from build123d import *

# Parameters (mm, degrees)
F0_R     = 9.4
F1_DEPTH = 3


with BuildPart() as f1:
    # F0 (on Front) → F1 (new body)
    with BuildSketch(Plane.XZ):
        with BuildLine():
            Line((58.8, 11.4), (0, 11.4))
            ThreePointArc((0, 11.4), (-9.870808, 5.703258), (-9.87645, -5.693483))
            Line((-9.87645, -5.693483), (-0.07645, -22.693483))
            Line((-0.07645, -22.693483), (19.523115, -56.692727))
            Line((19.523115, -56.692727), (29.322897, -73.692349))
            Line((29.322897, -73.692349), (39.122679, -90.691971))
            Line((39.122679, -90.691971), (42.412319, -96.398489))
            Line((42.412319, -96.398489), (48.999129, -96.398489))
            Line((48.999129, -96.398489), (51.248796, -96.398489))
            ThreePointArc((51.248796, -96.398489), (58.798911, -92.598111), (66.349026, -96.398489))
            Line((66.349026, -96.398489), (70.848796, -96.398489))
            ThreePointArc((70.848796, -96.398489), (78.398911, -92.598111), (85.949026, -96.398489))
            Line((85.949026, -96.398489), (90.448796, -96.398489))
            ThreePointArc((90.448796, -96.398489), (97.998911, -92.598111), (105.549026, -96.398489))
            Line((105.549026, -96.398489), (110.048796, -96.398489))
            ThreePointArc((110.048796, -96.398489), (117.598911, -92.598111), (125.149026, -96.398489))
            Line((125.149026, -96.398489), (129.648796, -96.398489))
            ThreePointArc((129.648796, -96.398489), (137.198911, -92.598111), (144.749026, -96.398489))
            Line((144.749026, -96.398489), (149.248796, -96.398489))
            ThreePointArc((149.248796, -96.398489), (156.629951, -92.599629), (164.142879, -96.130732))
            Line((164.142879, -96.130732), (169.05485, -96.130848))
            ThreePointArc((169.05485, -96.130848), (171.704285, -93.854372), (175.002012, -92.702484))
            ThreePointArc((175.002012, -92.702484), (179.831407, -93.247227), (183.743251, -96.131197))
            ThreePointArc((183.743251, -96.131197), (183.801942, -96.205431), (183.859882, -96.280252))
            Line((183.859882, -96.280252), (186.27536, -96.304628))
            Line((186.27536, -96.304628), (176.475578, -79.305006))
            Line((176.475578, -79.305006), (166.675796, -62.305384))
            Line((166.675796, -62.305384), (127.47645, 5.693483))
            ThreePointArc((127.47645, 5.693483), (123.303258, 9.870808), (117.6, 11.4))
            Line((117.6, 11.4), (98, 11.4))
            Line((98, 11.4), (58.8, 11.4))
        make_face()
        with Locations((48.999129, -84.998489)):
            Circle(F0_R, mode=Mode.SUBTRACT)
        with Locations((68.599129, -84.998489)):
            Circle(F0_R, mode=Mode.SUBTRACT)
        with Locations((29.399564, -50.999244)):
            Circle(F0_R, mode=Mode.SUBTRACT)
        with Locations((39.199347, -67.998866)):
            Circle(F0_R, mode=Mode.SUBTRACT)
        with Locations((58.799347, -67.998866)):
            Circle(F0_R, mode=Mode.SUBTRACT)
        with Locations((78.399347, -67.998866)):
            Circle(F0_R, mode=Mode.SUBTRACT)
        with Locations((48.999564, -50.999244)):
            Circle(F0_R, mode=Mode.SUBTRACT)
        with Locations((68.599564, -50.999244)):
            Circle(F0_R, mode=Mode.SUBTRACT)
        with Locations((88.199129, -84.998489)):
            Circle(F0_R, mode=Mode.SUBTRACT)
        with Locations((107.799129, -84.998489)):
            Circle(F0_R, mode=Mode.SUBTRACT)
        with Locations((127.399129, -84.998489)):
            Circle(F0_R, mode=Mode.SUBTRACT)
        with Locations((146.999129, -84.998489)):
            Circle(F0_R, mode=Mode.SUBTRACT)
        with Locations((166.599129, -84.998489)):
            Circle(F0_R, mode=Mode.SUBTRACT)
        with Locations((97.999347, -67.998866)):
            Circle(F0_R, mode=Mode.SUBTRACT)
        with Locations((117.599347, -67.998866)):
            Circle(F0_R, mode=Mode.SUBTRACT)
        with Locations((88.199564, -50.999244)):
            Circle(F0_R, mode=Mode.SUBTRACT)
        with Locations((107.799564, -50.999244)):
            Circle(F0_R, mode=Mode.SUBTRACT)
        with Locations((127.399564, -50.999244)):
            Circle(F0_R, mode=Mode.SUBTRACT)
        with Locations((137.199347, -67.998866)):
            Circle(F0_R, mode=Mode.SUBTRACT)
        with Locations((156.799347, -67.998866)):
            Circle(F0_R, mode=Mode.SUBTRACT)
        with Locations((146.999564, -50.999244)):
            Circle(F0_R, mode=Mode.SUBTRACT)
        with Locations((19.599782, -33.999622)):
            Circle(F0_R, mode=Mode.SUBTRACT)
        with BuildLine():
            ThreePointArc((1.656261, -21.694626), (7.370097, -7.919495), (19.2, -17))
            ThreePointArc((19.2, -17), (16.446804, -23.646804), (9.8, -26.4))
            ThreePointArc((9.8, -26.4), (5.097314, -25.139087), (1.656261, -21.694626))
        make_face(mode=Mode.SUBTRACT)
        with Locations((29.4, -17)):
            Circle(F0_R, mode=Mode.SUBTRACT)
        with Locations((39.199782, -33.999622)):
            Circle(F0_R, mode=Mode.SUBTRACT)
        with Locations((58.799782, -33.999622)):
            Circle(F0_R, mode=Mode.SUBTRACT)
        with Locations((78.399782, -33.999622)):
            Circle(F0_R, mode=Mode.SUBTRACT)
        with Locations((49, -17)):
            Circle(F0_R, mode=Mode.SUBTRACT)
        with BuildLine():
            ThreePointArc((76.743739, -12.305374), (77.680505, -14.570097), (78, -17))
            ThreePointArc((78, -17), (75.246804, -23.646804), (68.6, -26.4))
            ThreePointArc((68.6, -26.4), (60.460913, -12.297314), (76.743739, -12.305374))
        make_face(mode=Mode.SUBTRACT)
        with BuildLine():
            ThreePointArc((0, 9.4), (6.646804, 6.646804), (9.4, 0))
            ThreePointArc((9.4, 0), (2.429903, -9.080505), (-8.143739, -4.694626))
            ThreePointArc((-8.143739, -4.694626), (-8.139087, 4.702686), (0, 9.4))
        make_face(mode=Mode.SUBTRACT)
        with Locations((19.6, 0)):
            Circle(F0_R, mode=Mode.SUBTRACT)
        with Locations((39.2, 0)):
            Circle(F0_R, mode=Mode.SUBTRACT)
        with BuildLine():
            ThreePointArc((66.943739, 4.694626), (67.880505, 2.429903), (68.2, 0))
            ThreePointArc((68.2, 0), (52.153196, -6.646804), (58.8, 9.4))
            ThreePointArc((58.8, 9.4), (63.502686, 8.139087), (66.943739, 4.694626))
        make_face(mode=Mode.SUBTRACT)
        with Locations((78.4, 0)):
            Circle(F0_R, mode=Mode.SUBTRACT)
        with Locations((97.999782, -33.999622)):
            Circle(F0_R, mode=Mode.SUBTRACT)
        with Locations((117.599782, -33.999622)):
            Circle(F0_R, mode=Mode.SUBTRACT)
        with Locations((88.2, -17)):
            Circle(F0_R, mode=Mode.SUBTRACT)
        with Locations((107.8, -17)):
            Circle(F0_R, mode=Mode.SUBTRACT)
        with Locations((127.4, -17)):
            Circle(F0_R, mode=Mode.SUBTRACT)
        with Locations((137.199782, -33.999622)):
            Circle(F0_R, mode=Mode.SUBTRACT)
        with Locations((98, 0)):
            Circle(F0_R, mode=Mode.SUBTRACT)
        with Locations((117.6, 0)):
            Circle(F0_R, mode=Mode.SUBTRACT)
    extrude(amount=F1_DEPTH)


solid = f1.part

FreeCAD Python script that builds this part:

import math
import FreeCAD as App
import Part
import Sketcher
Q = App.Units.Quantity

doc = App.newDocument("Part")
params = doc.addObject("Spreadsheet::Sheet", "Params")
for row, (alias, value) in enumerate([
    ("sketch1_diameter", "18.8 mm"),
    ("sketch1_radius", "11.4 mm"),
    ("sketch1_width", "117.6 mm"),
    ("pad1_length", "3 mm"),
], start=1):
    params.set(f"A{row}", alias)
    params.set(f"B{row}", "=" + value)
    params.setAlias(f"B{row}", alias)

body = doc.addObject("PartDesign::Body", "Body")

sketch1 = body.newObject("Sketcher::SketchObject", "Sketch")
sketch1.AttachmentSupport = (doc.getObject("XZ_Plane"), [""])
sketch1.MapMode = "FlatFace"
sketch1.addGeometry(Part.ArcOfCircle(Part.Circle(App.Vector(0, 0, 0), App.Vector(0, 0, 1), 11.4), math.radians(90.000001), math.radians(209.962182)), False)
sketch1.addGeometry(Part.LineSegment(App.Vector(-9.87645, -5.693483, 0), App.Vector(-0.07645, -22.693483, 0)), False)
sketch1.addGeometry(Part.LineSegment(App.Vector(-0.07645, -22.693483, 0), App.Vector(19.523115, -56.692727, 0)), False)
sketch1.addGeometry(Part.LineSegment(App.Vector(19.523115, -56.692727, 0), App.Vector(39.122679, -90.691971, 0)), False)
sketch1.addGeometry(Part.LineSegment(App.Vector(39.122679, -90.691971, 0), App.Vector(42.412319, -96.398489, 0)), False)
sketch1.addGeometry(Part.LineSegment(App.Vector(42.412319, -96.398489, 0), App.Vector(51.248796, -96.398489, 0)), False)
sketch1.addGeometry(Part.ArcOfCircle(Part.Circle(App.Vector(58.798911, -101.998111, 0), App.Vector(0, 0, 1), 9.4), math.radians(36.56287), math.radians(143.43713)), False)
sketch1.addGeometry(Part.LineSegment(App.Vector(66.349026, -96.398489, 0), App.Vector(70.848796, -96.398489, 0)), False)
sketch1.addGeometry(Part.ArcOfCircle(Part.Circle(App.Vector(78.398911, -101.998111, 0), App.Vector(0, 0, 1), 9.4), math.radians(36.56287), math.radians(143.43713)), False)
sketch1.addGeometry(Part.LineSegment(App.Vector(85.949026, -96.398489, 0), App.Vector(90.448796, -96.398489, 0)), False)
sketch1.addGeometry(Part.ArcOfCircle(Part.Circle(App.Vector(97.998911, -101.998111, 0), App.Vector(0, 0, 1), 9.4), math.radians(36.56287), math.radians(143.43713)), False)
sketch1.addGeometry(Part.LineSegment(App.Vector(105.549026, -96.398489, 0), App.Vector(110.048796, -96.398489, 0)), False)
sketch1.addGeometry(Part.ArcOfCircle(Part.Circle(App.Vector(117.598911, -101.998111, 0), App.Vector(0, 0, 1), 9.4), math.radians(36.56287), math.radians(143.43713)), False)
sketch1.addGeometry(Part.LineSegment(App.Vector(125.149026, -96.398489, 0), App.Vector(129.648796, -96.398489, 0)), False)
sketch1.addGeometry(Part.ArcOfCircle(Part.Circle(App.Vector(137.198911, -101.998111, 0), App.Vector(0, 0, 1), 9.4), math.radians(36.56287), math.radians(143.43713)), False)
sketch1.addGeometry(Part.LineSegment(App.Vector(144.749026, -96.398489, 0), App.Vector(149.248796, -96.398489, 0)), False)
sketch1.addGeometry(Part.ArcOfCircle(Part.Circle(App.Vector(156.798911, -101.99811, 0), App.Vector(0, 0, 1), 9.399999), math.radians(38.622699), math.radians(143.437138)), False)
sketch1.addGeometry(Part.LineSegment(App.Vector(164.142879, -96.130732, 0), App.Vector(169.05485, -96.130848, 0)), False)
sketch1.addGeometry(Part.ArcOfCircle(Part.Circle(App.Vector(176.398915, -101.998117, 0), App.Vector(0, 0, 1), 9.400007), math.radians(98.546183), math.radians(141.378185)), False)
sketch1.addGeometry(Part.ArcOfCircle(Part.Circle(App.Vector(176.39891, -101.998115, 0), App.Vector(0, 0, 1), 9.400004), math.radians(38.619087), math.radians(98.546156)), False)
sketch1.addGeometry(Part.ArcOfCircle(Part.Circle(App.Vector(176.402783, -101.995047, 0), App.Vector(0, 0, 1), 9.395063), math.radians(37.464981), math.radians(38.619216)), False)
sketch1.addGeometry(Part.LineSegment(App.Vector(183.859882, -96.280252, 0), App.Vector(186.27536, -96.304628, 0)), False)
sketch1.addGeometry(Part.LineSegment(App.Vector(186.27536, -96.304628, 0), App.Vector(166.675796, -62.305384, 0)), False)
sketch1.addGeometry(Part.LineSegment(App.Vector(166.675796, -62.305384, 0), App.Vector(127.47645, 5.693483, 0)), False)
sketch1.addGeometry(Part.ArcOfCircle(Part.Circle(App.Vector(117.6, -0.000001, 0), App.Vector(0, 0, 1), 11.400001), math.radians(29.96219), math.radians(89.999999)), False)
sketch1.addGeometry(Part.LineSegment(App.Vector(117.6, 11.4, 0), App.Vector(0, 11.4, 0)), False)
sketch1.addGeometry(Part.Circle(App.Vector(48.999129, -84.998489, 0), App.Vector(0, 0, 1), 9.4), False)
sketch1.addGeometry(Part.Circle(App.Vector(68.599129, -84.998489, 0), App.Vector(0, 0, 1), 9.4), False)
sketch1.addGeometry(Part.Circle(App.Vector(29.399564, -50.999244, 0), App.Vector(0, 0, 1), 9.4), False)
sketch1.addGeometry(Part.Circle(App.Vector(39.199347, -67.998866, 0), App.Vector(0, 0, 1), 9.4), False)
sketch1.addGeometry(Part.Circle(App.Vector(58.799347, -67.998866, 0), App.Vector(0, 0, 1), 9.4), False)
sketch1.addGeometry(Part.Circle(App.Vector(78.399347, -67.998866, 0), App.Vector(0, 0, 1), 9.4), False)
sketch1.addGeometry(Part.Circle(App.Vector(48.999564, -50.999244, 0), App.Vector(0, 0, 1), 9.4), False)
sketch1.addGeometry(Part.Circle(App.Vector(68.599564, -50.999244, 0), App.Vector(0, 0, 1), 9.4), False)
sketch1.addGeometry(Part.Circle(App.Vector(88.199129, -84.998489, 0), App.Vector(0, 0, 1), 9.4), False)
sketch1.addGeometry(Part.Circle(App.Vector(107.799129, -84.998489, 0), App.Vector(0, 0, 1), 9.4), False)
sketch1.addGeometry(Part.Circle(App.Vector(127.399129, -84.998489, 0), App.Vector(0, 0, 1), 9.4), False)
sketch1.addGeometry(Part.Circle(App.Vector(146.999129, -84.998489, 0), App.Vector(0, 0, 1), 9.4), False)
sketch1.addGeometry(Part.Circle(App.Vector(166.599129, -84.998489, 0), App.Vector(0, 0, 1), 9.4), False)
sketch1.addGeometry(Part.Circle(App.Vector(97.999347, -67.998866, 0), App.Vector(0, 0, 1), 9.4), False)
sketch1.addGeometry(Part.Circle(App.Vector(117.599347, -67.998866, 0), App.Vector(0, 0, 1), 9.4), False)
sketch1.addGeometry(Part.Circle(App.Vector(88.199564, -50.999244, 0), App.Vector(0, 0, 1), 9.4), False)
sketch1.addGeometry(Part.Circle(App.Vector(107.799564, -50.999244, 0), App.Vector(0, 0, 1), 9.4), False)
sketch1.addGeometry(Part.Circle(App.Vector(127.399564, -50.999244, 0), App.Vector(0, 0, 1), 9.4), False)
sketch1.addGeometry(Part.Circle(App.Vector(137.199347, -67.998866, 0), App.Vector(0, 0, 1), 9.4), False)
sketch1.addGeometry(Part.Circle(App.Vector(156.799347, -67.998866, 0), App.Vector(0, 0, 1), 9.4), False)
sketch1.addGeometry(Part.Circle(App.Vector(146.999564, -50.999244, 0), App.Vector(0, 0, 1), 9.4), False)
sketch1.addGeometry(Part.Circle(App.Vector(19.599782, -33.999622, 0), App.Vector(0, 0, 1), 9.4), False)
sketch1.addGeometry(Part.ArcOfCircle(Part.Circle(App.Vector(9.800001, -16.999998, 0), App.Vector(0, 0, 1), 9.400002), math.radians(-150.037809), math.radians(-90.000008)), False)
sketch1.addGeometry(Part.ArcOfCircle(Part.Circle(App.Vector(9.8, -17, 0), App.Vector(0, 0, 1), 9.4), math.radians(0), math.radians(209.962184)), False)
sketch1.addGeometry(Part.ArcOfCircle(Part.Circle(App.Vector(9.800001, -17.000001, 0), App.Vector(0, 0, 1), 9.399999), math.radians(-90.000005), math.radians(0.000005)), False)
sketch1.addGeometry(Part.Circle(App.Vector(29.4, -17, 0), App.Vector(0, 0, 1), 9.4), False)
sketch1.addGeometry(Part.Circle(App.Vector(39.199782, -33.999622, 0), App.Vector(0, 0, 1), 9.4), False)
sketch1.addGeometry(Part.Circle(App.Vector(58.799782, -33.999622, 0), App.Vector(0, 0, 1), 9.4), False)
sketch1.addGeometry(Part.Circle(App.Vector(78.399782, -33.999622, 0), App.Vector(0, 0, 1), 9.4), False)
sketch1.addGeometry(Part.Circle(App.Vector(49, -17, 0), App.Vector(0, 0, 1), 9.4), False)
sketch1.addGeometry(Part.ArcOfCircle(Part.Circle(App.Vector(68.6, -17, 0), App.Vector(0, 0, 1), 9.4), math.radians(29.962185), math.radians(269.999999)), False)
sketch1.addGeometry(Part.ArcOfCircle(Part.Circle(App.Vector(68.600001, -17, 0), App.Vector(0, 0, 1), 9.399999), math.radians(0), math.radians(29.962187)), False)
sketch1.addGeometry(Part.ArcOfCircle(Part.Circle(App.Vector(68.600001, -17.000001, 0), App.Vector(0, 0, 1), 9.399999), math.radians(-90.000005), math.radians(0.000005)), False)
sketch1.addGeometry(Part.ArcOfCircle(Part.Circle(App.Vector(0.000001, 0, 0), App.Vector(0, 0, 1), 9.4), math.radians(90.000004), math.radians(209.962181)), False)
sketch1.addGeometry(Part.ArcOfCircle(Part.Circle(App.Vector(0.000001, 0.000001, 0), App.Vector(0, 0, 1), 9.399999), math.radians(-0.000005), math.radians(90.000005)), False)
sketch1.addGeometry(Part.ArcOfCircle(Part.Circle(App.Vector(0, 0, 0), App.Vector(0, 0, 1), 9.4), math.radians(-150.037816), math.radians(0)), False)
sketch1.addGeometry(Part.Circle(App.Vector(19.6, 0, 0), App.Vector(0, 0, 1), 9.4), False)
sketch1.addGeometry(Part.Circle(App.Vector(39.2, 0, 0), App.Vector(0, 0, 1), 9.4), False)
sketch1.addGeometry(Part.ArcOfCircle(Part.Circle(App.Vector(58.799999, -0.000002, 0), App.Vector(0, 0, 1), 9.400002), math.radians(29.962191), math.radians(89.999992)), False)
sketch1.addGeometry(Part.ArcOfCircle(Part.Circle(App.Vector(58.800001, 0, 0), App.Vector(0, 0, 1), 9.399999), math.radians(0), math.radians(29.962187)), False)
sketch1.addGeometry(Part.ArcOfCircle(Part.Circle(App.Vector(58.8, 0, 0), App.Vector(0, 0, 1), 9.4), math.radians(89.999999), math.radians(360.000001)), False)
sketch1.addGeometry(Part.Circle(App.Vector(78.4, 0, 0), App.Vector(0, 0, 1), 9.4), False)
sketch1.addGeometry(Part.Circle(App.Vector(97.999782, -33.999622, 0), App.Vector(0, 0, 1), 9.4), False)
sketch1.addGeometry(Part.Circle(App.Vector(117.599782, -33.999622, 0), App.Vector(0, 0, 1), 9.4), False)
sketch1.addGeometry(Part.Circle(App.Vector(88.2, -17, 0), App.Vector(0, 0, 1), 9.4), False)
sketch1.addGeometry(Part.Circle(App.Vector(107.8, -17, 0), App.Vector(0, 0, 1), 9.4), False)
sketch1.addGeometry(Part.Circle(App.Vector(127.4, -17, 0), App.Vector(0, 0, 1), 9.4), False)
sketch1.addGeometry(Part.Circle(App.Vector(137.199782, -33.999622, 0), App.Vector(0, 0, 1), 9.4), False)
sketch1.addGeometry(Part.Circle(App.Vector(98, 0, 0), App.Vector(0, 0, 1), 9.4), False)
sketch1.addGeometry(Part.Circle(App.Vector(117.6, 0, 0), App.Vector(0, 0, 1), 9.4), False)
sketch1.addConstraint(Sketcher.Constraint("Tangent", 0, 2, 1, 1))
sketch1.addConstraint(Sketcher.Constraint("Coincident", 1, 2, 2, 1))
sketch1.addConstraint(Sketcher.Constraint("Coincident", 2, 2, 3, 1))
sketch1.addConstraint(Sketcher.Constraint("Coincident", 3, 2, 4, 1))
sketch1.addConstraint(Sketcher.Constraint("Coincident", 4, 2, 5, 1))
sketch1.addConstraint(Sketcher.Constraint("Coincident", 5, 2, 6, 2))
sketch1.addConstraint(Sketcher.Constraint("Coincident", 6, 1, 7, 1))
sketch1.addConstraint(Sketcher.Constraint("Coincident", 7, 2, 8, 2))
sketch1.addConstraint(Sketcher.Constraint("Coincident", 8, 1, 9, 1))
sketch1.addConstraint(Sketcher.Constraint("Coincident", 9, 2, 10, 2))
sketch1.addConstraint(Sketcher.Constraint("Coincident", 10, 1, 11, 1))
sketch1.addConstraint(Sketcher.Constraint("Coincident", 11, 2, 12, 2))
sketch1.addConstraint(Sketcher.Constraint("Coincident", 12, 1, 13, 1))
sketch1.addConstraint(Sketcher.Constraint("Coincident", 13, 2, 14, 2))
sketch1.addConstraint(Sketcher.Constraint("Coincident", 14, 1, 15, 1))
sketch1.addConstraint(Sketcher.Constraint("Coincident", 15, 2, 16, 2))
sketch1.addConstraint(Sketcher.Constraint("Coincident", 16, 1, 17, 1))
sketch1.addConstraint(Sketcher.Constraint("Coincident", 17, 2, 18, 2))
sketch1.addConstraint(Sketcher.Constraint("Tangent", 18, 1, 19, 2))
sketch1.addConstraint(Sketcher.Constraint("Coincident", 19, 1, 20, 2))
sketch1.addConstraint(Sketcher.Constraint("Coincident", 20, 1, 21, 1))
sketch1.addConstraint(Sketcher.Constraint("Coincident", 21, 2, 22, 1))
sketch1.addConstraint(Sketcher.Constraint("Coincident", 22, 2, 23, 1))
sketch1.addConstraint(Sketcher.Constraint("Tangent", 23, 2, 24, 1))
sketch1.addConstraint(Sketcher.Constraint("Tangent", 24, 2, 25, 1))
sketch1.addConstraint(Sketcher.Constraint("Tangent", 25, 2, 0, 1))
sketch1.addConstraint(Sketcher.Constraint("Tangent", 48, 1, 49, 2))
sketch1.addConstraint(Sketcher.Constraint("Tangent", 49, 1, 50, 2))
sketch1.addConstraint(Sketcher.Constraint("Tangent", 50, 1, 48, 2))
sketch1.addConstraint(Sketcher.Constraint("Tangent", 56, 1, 57, 2))
sketch1.addConstraint(Sketcher.Constraint("Tangent", 57, 1, 58, 2))
sketch1.addConstraint(Sketcher.Constraint("Tangent", 58, 1, 56, 2))
sketch1.addConstraint(Sketcher.Constraint("Tangent", 59, 1, 60, 2))
sketch1.addConstraint(Sketcher.Constraint("Tangent", 60, 1, 61, 2))
sketch1.addConstraint(Sketcher.Constraint("Tangent", 61, 1, 59, 2))
sketch1.addConstraint(Sketcher.Constraint("Tangent", 64, 1, 65, 2))
sketch1.addConstraint(Sketcher.Constraint("Tangent", 65, 1, 66, 2))
sketch1.addConstraint(Sketcher.Constraint("Tangent", 66, 1, 64, 2))
sketch1.addConstraint(Sketcher.Constraint("Horizontal", 5))
sketch1.addConstraint(Sketcher.Constraint("Horizontal", 7))
sketch1.addConstraint(Sketcher.Constraint("Horizontal", 9))
sketch1.addConstraint(Sketcher.Constraint("Horizontal", 11))
sketch1.addConstraint(Sketcher.Constraint("Horizontal", 13))
sketch1.addConstraint(Sketcher.Constraint("Horizontal", 15))
sketch1.addConstraint(Sketcher.Constraint("Horizontal", 25))
sketch1.addConstraint(Sketcher.Constraint("Coincident", 0, 3, -1, 1))
sketch1.addConstraint(Sketcher.Constraint("Coincident", 59, 3, -1, 1))
sketch1.addConstraint(Sketcher.Constraint("Coincident", 75, 3, 24, 3))
sketch1.addConstraint(Sketcher.Constraint("Equal", 6, 8))
sketch1.addConstraint(Sketcher.Constraint("Equal", 8, 10))
sketch1.addConstraint(Sketcher.Constraint("Equal", 10, 12))
sketch1.addConstraint(Sketcher.Constraint("Equal", 12, 14))
sketch1.addConstraint(Sketcher.Constraint("Equal", 14, 16))
sketch1.addConstraint(Sketcher.Constraint("Equal", 0, 24))
sketch1.addConstraint(Sketcher.Constraint("Equal", 16, 26))
sketch1.addConstraint(Sketcher.Constraint("Equal", 26, 27))
sketch1.addConstraint(Sketcher.Constraint("Equal", 27, 28))
sketch1.addConstraint(Sketcher.Constraint("Equal", 28, 29))
sketch1.addConstraint(Sketcher.Constraint("Equal", 29, 30))
sketch1.addConstraint(Sketcher.Constraint("Equal", 30, 31))
sketch1.addConstraint(Sketcher.Constraint("Equal", 31, 32))
sketch1.addConstraint(Sketcher.Constraint("Equal", 32, 33))
sketch1.addConstraint(Sketcher.Constraint("Equal", 33, 34))
sketch1.addConstraint(Sketcher.Constraint("Equal", 34, 35))
sketch1.addConstraint(Sketcher.Constraint("Equal", 35, 36))
sketch1.addConstraint(Sketcher.Constraint("Equal", 36, 37))
sketch1.addConstraint(Sketcher.Constraint("Equal", 37, 38))
sketch1.addConstraint(Sketcher.Constraint("Equal", 38, 39))
sketch1.addConstraint(Sketcher.Constraint("Equal", 39, 40))
sketch1.addConstraint(Sketcher.Constraint("Equal", 40, 41))
sketch1.addConstraint(Sketcher.Constraint("Equal", 41, 42))
sketch1.addConstraint(Sketcher.Constraint("Equal", 42, 43))
sketch1.addConstraint(Sketcher.Constraint("Equal", 43, 44))
sketch1.addConstraint(Sketcher.Constraint("Equal", 44, 45))
sketch1.addConstraint(Sketcher.Constraint("Equal", 45, 46))
sketch1.addConstraint(Sketcher.Constraint("Equal", 46, 47))
sketch1.addConstraint(Sketcher.Constraint("Equal", 19, 48))
sketch1.addConstraint(Sketcher.Constraint("Equal", 47, 49))
sketch1.addConstraint(Sketcher.Constraint("Equal", 50, 51))
sketch1.addConstraint(Sketcher.Constraint("Equal", 51, 52))
sketch1.addConstraint(Sketcher.Constraint("Equal", 52, 53))
sketch1.addConstraint(Sketcher.Constraint("Equal", 53, 54))
sketch1.addConstraint(Sketcher.Constraint("Equal", 54, 55))
sketch1.addConstraint(Sketcher.Constraint("Equal", 55, 56))
sketch1.addConstraint(Sketcher.Constraint("Equal", 58, 59))
sketch1.addConstraint(Sketcher.Constraint("Equal", 61, 62))
sketch1.addConstraint(Sketcher.Constraint("Equal", 62, 63))
sketch1.addConstraint(Sketcher.Constraint("Equal", 59, 64))
sketch1.addConstraint(Sketcher.Constraint("Equal", 66, 67))
sketch1.addConstraint(Sketcher.Constraint("Equal", 67, 68))
sketch1.addConstraint(Sketcher.Constraint("Equal", 68, 69))
sketch1.addConstraint(Sketcher.Constraint("Equal", 69, 70))
sketch1.addConstraint(Sketcher.Constraint("Equal", 70, 71))
sketch1.addConstraint(Sketcher.Constraint("Equal", 71, 72))
sketch1.addConstraint(Sketcher.Constraint("Equal", 72, 73))
sketch1.addConstraint(Sketcher.Constraint("Equal", 73, 74))
sketch1.addConstraint(Sketcher.Constraint("Equal", 74, 75))
sketch1.addConstraint(Sketcher.Constraint("PointOnObject", 62, 3, -1))
sketch1.addConstraint(Sketcher.Constraint("PointOnObject", 63, 3, -1))
sketch1.addConstraint(Sketcher.Constraint("PointOnObject", 65, 3, -1))
sketch1.addConstraint(Sketcher.Constraint("PointOnObject", 67, 3, -1))
sketch1.addConstraint(Sketcher.Constraint("PointOnObject", 74, 3, -1))
sketch1.addConstraint(Sketcher.Constraint("PointOnObject", 59, 1, -2))
sketch1.addConstraint(Sketcher.Constraint("PointOnObject", 60, 1, -1))
sketch1.addConstraint(Sketcher.Constraint("PointOnObject", 65, 1, -1))
sketch1.addConstraint(Sketcher.Constraint("Parallel", 1, 2))
sketch1.addConstraint(Sketcher.Constraint("Parallel", 2, 3))
sketch1.addConstraint(Sketcher.Constraint("Parallel", 3, 4))
sketch1.addConstraint(Sketcher.Constraint("Parallel", 4, 22))
sketch1.addConstraint(Sketcher.Constraint("Parallel", 22, 23))
sketch1.addConstraint(Sketcher.Constraint("Horizontal", 6, 3, 8, 3))
sketch1.addConstraint(Sketcher.Constraint("Horizontal", 8, 3, 10, 3))
sketch1.addConstraint(Sketcher.Constraint("Horizontal", 10, 3, 12, 3))
sketch1.addConstraint(Sketcher.Constraint("Horizontal", 12, 3, 14, 3))
sketch1.addConstraint(Sketcher.Constraint("Horizontal", 14, 3, 16, 3))
sketch1.addConstraint(Sketcher.Constraint("Horizontal", 26, 3, 27, 3))
sketch1.addConstraint(Sketcher.Constraint("Horizontal", 29, 3, 30, 3))
sketch1.addConstraint(Sketcher.Constraint("Horizontal", 30, 3, 31, 3))
sketch1.addConstraint(Sketcher.Constraint("Horizontal", 28, 3, 32, 3))
sketch1.addConstraint(Sketcher.Constraint("Horizontal", 32, 3, 33, 3))
sketch1.addConstraint(Sketcher.Constraint("Horizontal", 27, 3, 34, 3))
sketch1.addConstraint(Sketcher.Constraint("Horizontal", 34, 3, 35, 3))
sketch1.addConstraint(Sketcher.Constraint("Horizontal", 35, 3, 36, 3))
sketch1.addConstraint(Sketcher.Constraint("Horizontal", 36, 3, 37, 3))
sketch1.addConstraint(Sketcher.Constraint("Horizontal", 37, 3, 38, 3))
sketch1.addConstraint(Sketcher.Constraint("Horizontal", 31, 3, 39, 3))
sketch1.addConstraint(Sketcher.Constraint("Horizontal", 39, 3, 40, 3))
sketch1.addConstraint(Sketcher.Constraint("Horizontal", 33, 3, 41, 3))
sketch1.addConstraint(Sketcher.Constraint("Horizontal", 41, 3, 42, 3))
sketch1.addConstraint(Sketcher.Constraint("Horizontal", 42, 3, 43, 3))
sketch1.addConstraint(Sketcher.Constraint("Horizontal", 40, 3, 44, 3))
sketch1.addConstraint(Sketcher.Constraint("Horizontal", 44, 3, 45, 3))
sketch1.addConstraint(Sketcher.Constraint("Horizontal", 43, 3, 46, 3))
sketch1.addConstraint(Sketcher.Constraint("Horizontal", 50, 3, 51, 3))
sketch1.addConstraint(Sketcher.Constraint("Horizontal", 47, 3, 52, 3))
sketch1.addConstraint(Sketcher.Constraint("Horizontal", 52, 3, 53, 3))
sketch1.addConstraint(Sketcher.Constraint("Horizontal", 53, 3, 54, 3))
sketch1.addConstraint(Sketcher.Constraint("Horizontal", 51, 3, 55, 3))
sketch1.addConstraint(Sketcher.Constraint("Horizontal", 55, 3, 56, 3))
sketch1.addConstraint(Sketcher.Constraint("Horizontal", 54, 3, 68, 3))
sketch1.addConstraint(Sketcher.Constraint("Horizontal", 68, 3, 69, 3))
sketch1.addConstraint(Sketcher.Constraint("Horizontal", 58, 3, 70, 3))
sketch1.addConstraint(Sketcher.Constraint("Horizontal", 70, 3, 71, 3))
sketch1.addConstraint(Sketcher.Constraint("Horizontal", 71, 3, 72, 3))
sketch1.addConstraint(Sketcher.Constraint("Horizontal", 69, 3, 73, 3))
sketch1.addConstraint(Sketcher.Constraint("Horizontal", 5, 2, 6, 1))
sketch1.addConstraint(Sketcher.Constraint("Horizontal", 7, 2, 8, 1))
sketch1.addConstraint(Sketcher.Constraint("Horizontal", 9, 2, 10, 1))
sketch1.addConstraint(Sketcher.Constraint("Horizontal", 11, 2, 12, 1))
sketch1.addConstraint(Sketcher.Constraint("Horizontal", 13, 2, 14, 1))
sketch1.addConstraint(Sketcher.Constraint("Horizontal", 72, 3, 49, 1))
sketch1.addConstraint(Sketcher.Constraint("Horizontal", 49, 1, 57, 1))
sketch1.addConstraint(Sketcher.Constraint("Vertical", 49, 3, 50, 1))
sketch1.addConstraint(Sketcher.Constraint("Vertical", 57, 3, 58, 1))
sketch1.addConstraint(Sketcher.Constraint("Vertical", 65, 3, 66, 1))
sketch1.addConstraint(Sketcher.Constraint("Equal", 7, 9))
sketch1.addConstraint(Sketcher.Constraint("Equal", 9, 11))
sketch1.addConstraint(Sketcher.Constraint("Equal", 11, 13))
sketch1.addConstraint(Sketcher.Constraint("Equal", 13, 15))
sketch1.addConstraint(Sketcher.Constraint("Equal", 2, 3))
sketch1.addConstraint(Sketcher.Constraint("Equal", 3, 22))
sketch1.addConstraint(Sketcher.Constraint("Diameter", 26, Q("18.8 mm")))
sketch1.addConstraint(Sketcher.Constraint("Radius", 0, Q("11.4 mm")))
sketch1.addConstraint(Sketcher.Constraint("DistanceX", 25, 2, 25, 1, Q("117.6 mm")))
sketch1.addConstraint(Sketcher.Constraint("DistanceY", 49, 3, -1, 1, Q("17 mm")))
sketch1.addConstraint(Sketcher.Constraint("DistanceX", -1, 1, 55, 3, Q("49 mm")))
sketch1.addConstraint(Sketcher.Constraint("DistanceX", -1, 1, 74, 3, Q("98 mm")))
sketch1.addConstraint(Sketcher.Constraint("DistanceX", -1, 1, 57, 1, Q("78 mm")))
sketch1.addConstraint(Sketcher.Constraint("DistanceX", -1, 1, 48, 3, Q("9.800001 mm")))
sketch1.addConstraint(Sketcher.Constraint("DistanceX", -1, 1, 51, 3, Q("29.4 mm")))
sketch1.addConstraint(Sketcher.Constraint("DistanceX", -1, 1, 62, 3, Q("19.6 mm")))
sketch1.addConstraint(Sketcher.Constraint("DistanceX", -1, 1, 63, 3, Q("39.2 mm")))
sketch1.addConstraint(Sketcher.Constraint("DistanceX", -1, 1, 64, 3, Q("58.799999 mm")))
sketch1.addConstraint(Sketcher.Constraint("DistanceX", -1, 1, 67, 3, Q("78.4 mm")))
sketch1.addConstraint(Sketcher.Constraint("DistanceX", -1, 1, 70, 3, Q("88.2 mm")))
sketch1.addConstraint(Sketcher.Constraint("DistanceX", -1, 1, 71, 3, Q("107.8 mm")))
sketch1.addConstraint(Sketcher.Constraint("DistanceX", -1, 1, 72, 3, Q("127.4 mm")))
sketch1.addConstraint(Sketcher.Constraint("Distance", 2, Q("39.244 mm")))
sketch1.addConstraint(Sketcher.Constraint("Radius", 18, Q("9.400007 mm")))
sketch1.addConstraint(Sketcher.Constraint("Radius", 20, Q("9.395063 mm")))
sketch1.addConstraint(Sketcher.Constraint("Distance", 21, Q("2.415601 mm")))
sketch1.addConstraint(Sketcher.Constraint("DistanceX", 7, 1, 7, 2, Q("4.49977 mm")))
sketch1.addConstraint(Sketcher.Constraint("Distance", 4, Q("6.586811 mm")))
sketch1.addConstraint(Sketcher.Constraint("Distance", 17, Q("4.911971 mm")))
sketch1.addConstraint(Sketcher.Constraint("DistanceX", 5, 1, 5, 2, Q("8.836477 mm")))
sketch1.addConstraint(Sketcher.Constraint("DistanceX", -1, 1, 6, 3, Q("58.798911 mm")))
sketch1.addConstraint(Sketcher.Constraint("DistanceY", 6, 3, -1, 1, Q("101.998111 mm")))
sketch1.addConstraint(Sketcher.Constraint("DistanceX", -1, 1, 8, 3, Q("78.398911 mm")))
sketch1.addConstraint(Sketcher.Constraint("DistanceX", -1, 1, 19, 3, Q("176.39891 mm")))
sketch1.addConstraint(Sketcher.Constraint("DistanceX", -1, 1, 26, 3, Q("48.999129 mm")))
sketch1.addConstraint(Sketcher.Constraint("DistanceY", 26, 3, -1, 1, Q("84.998489 mm")))
sketch1.addConstraint(Sketcher.Constraint("DistanceX", -1, 1, 27, 3, Q("68.599129 mm")))
sketch1.addConstraint(Sketcher.Constraint("DistanceX", -1, 1, 34, 3, Q("88.199129 mm")))
sketch1.addConstraint(Sketcher.Constraint("DistanceX", -1, 1, 35, 3, Q("107.799129 mm")))
sketch1.addConstraint(Sketcher.Constraint("DistanceX", -1, 1, 36, 3, Q("127.399129 mm")))
sketch1.addConstraint(Sketcher.Constraint("DistanceX", -1, 1, 37, 3, Q("146.999129 mm")))
sketch1.addConstraint(Sketcher.Constraint("DistanceX", -1, 1, 38, 3, Q("166.599129 mm")))
sketch1.addConstraint(Sketcher.Constraint("DistanceX", -1, 1, 54, 3, Q("78.399782 mm")))
sketch1.addConstraint(Sketcher.Constraint("DistanceX", -1, 1, 68, 3, Q("97.999782 mm")))
sketch1.addConstraint(Sketcher.Constraint("DistanceX", -1, 1, 73, 3, Q("137.199782 mm")))
sketch1.addConstraint(Sketcher.Constraint("DistanceX", -1, 1, 16, 1, Q("164.142879 mm")))
sketch1.addConstraint(Sketcher.Constraint("DistanceY", 17, 2, -1, 1, Q("96.130848 mm")))
sketch1.addConstraint(Sketcher.Constraint("DistanceX", -1, 1, 18, 1, Q("175.002012 mm")))
sketch1.addConstraint(Sketcher.Constraint("DistanceX", -1, 1, 19, 1, Q("183.743251 mm")))
sketch1.addConstraint(Sketcher.Constraint("DistanceX", -1, 1, 20, 1, Q("183.859882 mm")))
sketch1.addConstraint(Sketcher.Constraint("DistanceX", -1, 1, 48, 1, Q("1.656261 mm")))
sketch1.addConstraint(Sketcher.Constraint("DistanceX", -1, 1, 56, 1, Q("76.743739 mm")))
sketch1.addConstraint(Sketcher.Constraint("DistanceX", 61, 1, -1, 1, Q("8.143739 mm")))
sketch1.addConstraint(Sketcher.Constraint("DistanceX", -1, 1, 64, 1, Q("66.943739 mm")))
sketch1.addConstraint(Sketcher.Constraint("DistanceX", -1, 1, 20, 3, Q("176.402783 mm")))
sketch1.addConstraint(Sketcher.Constraint("DistanceX", -1, 1, 28, 3, Q("29.399564 mm")))
sketch1.addConstraint(Sketcher.Constraint("DistanceY", 28, 3, -1, 1, Q("50.999244 mm")))
sketch1.addConstraint(Sketcher.Constraint("DistanceX", -1, 1, 29, 3, Q("39.199347 mm")))
sketch1.addConstraint(Sketcher.Constraint("DistanceY", 29, 3, -1, 1, Q("67.998866 mm")))
sketch1.addConstraint(Sketcher.Constraint("DistanceX", -1, 1, 30, 3, Q("58.799347 mm")))
sketch1.addConstraint(Sketcher.Constraint("DistanceX", -1, 1, 31, 3, Q("78.399347 mm")))
sketch1.addConstraint(Sketcher.Constraint("DistanceX", -1, 1, 32, 3, Q("48.999564 mm")))
sketch1.addConstraint(Sketcher.Constraint("DistanceX", -1, 1, 33, 3, Q("68.599564 mm")))
sketch1.addConstraint(Sketcher.Constraint("DistanceX", -1, 1, 39, 3, Q("97.999347 mm")))
sketch1.addConstraint(Sketcher.Constraint("DistanceX", -1, 1, 40, 3, Q("117.599347 mm")))
sketch1.addConstraint(Sketcher.Constraint("DistanceX", -1, 1, 41, 3, Q("88.199564 mm")))
sketch1.addConstraint(Sketcher.Constraint("DistanceX", -1, 1, 42, 3, Q("107.799564 mm")))
sketch1.addConstraint(Sketcher.Constraint("DistanceX", -1, 1, 43, 3, Q("127.399564 mm")))
sketch1.addConstraint(Sketcher.Constraint("DistanceX", -1, 1, 44, 3, Q("137.199347 mm")))
sketch1.addConstraint(Sketcher.Constraint("DistanceX", -1, 1, 45, 3, Q("156.799347 mm")))
sketch1.addConstraint(Sketcher.Constraint("DistanceX", -1, 1, 46, 3, Q("146.999564 mm")))
sketch1.addConstraint(Sketcher.Constraint("DistanceX", -1, 1, 47, 3, Q("19.599782 mm")))
sketch1.addConstraint(Sketcher.Constraint("DistanceY", 47, 3, -1, 1, Q("33.999622 mm")))
sketch1.addConstraint(Sketcher.Constraint("DistanceX", -1, 1, 52, 3, Q("39.199782 mm")))
sketch1.addConstraint(Sketcher.Constraint("DistanceX", -1, 1, 53, 3, Q("58.799782 mm")))
sketch1.addConstraint(Sketcher.Constraint("DistanceX", -1, 1, 69, 3, Q("117.599782 mm")))
sketch1.setExpression("Constraints[161]", "Params.sketch1_diameter")
sketch1.setExpression("Constraints[162]", "Params.sketch1_radius")
sketch1.setExpression("Constraints[163]", "Params.sketch1_width")
pad1 = body.newObject("PartDesign::Pad", "Pad")
pad1.Profile = sketch1
pad1.setExpression("Length", "Params.pad1_length")

doc.recompute()
